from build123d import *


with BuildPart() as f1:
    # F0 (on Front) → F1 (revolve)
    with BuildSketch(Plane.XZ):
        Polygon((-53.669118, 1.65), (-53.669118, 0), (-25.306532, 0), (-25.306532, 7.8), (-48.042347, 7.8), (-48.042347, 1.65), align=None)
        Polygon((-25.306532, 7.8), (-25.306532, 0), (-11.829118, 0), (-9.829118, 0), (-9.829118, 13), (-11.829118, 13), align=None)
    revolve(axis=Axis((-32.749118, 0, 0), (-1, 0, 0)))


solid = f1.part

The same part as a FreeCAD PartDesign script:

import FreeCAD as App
import Part
import Sketcher

doc = App.newDocument("Part")
params = doc.addObject("Spreadsheet::Sheet", "Params")
for row, (alias, value) in enumerate([
    ("sketch1_width", "2 mm"),
    ("sketch1_height", "13 mm"),
    ("sketch1_width2", "43.84 mm"),
    ("sketch1_height2", "1.65 mm"),
    ("sketch1_height3", "6.15 mm"),
    ("revolution_angle", "360 deg"),
], start=1):
    params.set(f"A{row}", alias)
    params.set(f"B{row}", "=" + value)
    params.setAlias(f"B{row}", alias)

body = doc.addObject("PartDesign::Body", "Body")

# Sketch on XZ plane
sketch1 = body.newObject("Sketcher::SketchObject", "Sketch")
sketch1.AttachmentSupport = (doc.getObject("XZ_Plane"), [""])
sketch1.MapMode = "FlatFace"
sketch1.addGeometry([
    Part.LineSegment(App.Vector(-53.7, 1.6, 0), App.Vector(-53.7, 0, 0)),  # 0
    Part.LineSegment(App.Vector(-53.7, 0, 0), App.Vector(-9.8, 0, 0)),  # 1
    Part.LineSegment(App.Vector(-9.8, 0, 0), App.Vector(-9.8, 13, 0)),  # 2
    Part.LineSegment(App.Vector(-9.8, 13, 0), App.Vector(-11.8, 13, 0)),  # 3
    Part.LineSegment(App.Vector(-11.8, 13, 0), App.Vector(-25.3, 7.8, 0)),  # 4
    Part.LineSegment(App.Vector(-25.3, 7.8, 0), App.Vector(-48, 7.8, 0)),  # 5
    Part.LineSegment(App.Vector(-48, 7.8, 0), App.Vector(-48, 1.6, 0)),  # 6
    Part.LineSegment(App.Vector(-48, 1.6, 0), App.Vector(-53.7, 1.6, 0)),  # 7
], False)
sketch1.addConstraint([
    Sketcher.Constraint("Coincident", 0, 2, 1, 1),
    Sketcher.Constraint("Coincident", 1, 2, 2, 1),
    Sketcher.Constraint("Coincident", 2, 2, 3, 1),
    Sketcher.Constraint("Coincident", 3, 2, 4, 1),
    Sketcher.Constraint("Coincident", 4, 2, 5, 1),
    Sketcher.Constraint("Coincident", 5, 2, 6, 1),
    Sketcher.Constraint("Coincident", 6, 2, 7, 1),
    Sketcher.Constraint("Coincident", 7, 2, 0, 1),
    Sketcher.Constraint("Vertical", 0),
    Sketcher.Constraint("Horizontal", 1),
    Sketcher.Constraint("Vertical", 2),
    Sketcher.Constraint("Horizontal", 3),
    Sketcher.Constraint("Horizontal", 5),
    Sketcher.Constraint("Vertical", 6),
    Sketcher.Constraint("Horizontal", 7),
    Sketcher.Constraint("PointOnObject", 0, 2, -1),
    Sketcher.Constraint("DistanceX", 3, 2, 3, 1, 2.0),
    Sketcher.Constraint("DistanceY", 2, 1, 2, 2, 13.0),
    Sketcher.Constraint("DistanceX", 1, 1, 1, 2, 43.84),
    Sketcher.Constraint("DistanceY", 0, 2, 0, 1, 1.65),
    Sketcher.Constraint("DistanceY", 6, 2, 6, 1, 6.15),
    Sketcher.Constraint("DistanceX", 7, 2, 7, 1, 5.626771),
    Sketcher.Constraint("DistanceX", 5, 2, 5, 1, 22.735815),
    Sketcher.Constraint("DistanceX", 0, 2, -1, 1, 53.669118),
])
sketch1.setExpression("Constraints[16]", "Params.sketch1_width")
sketch1.setExpression("Constraints[17]", "Params.sketch1_height")
sketch1.setExpression("Constraints[18]", "Params.sketch1_width2")
sketch1.setExpression("Constraints[19]", "Params.sketch1_height2")
sketch1.setExpression("Constraints[20]", "Params.sketch1_height3")
revolution = body.newObject("PartDesign::Revolution", "Revolution")
revolution.Profile = sketch1
revolution.ReferenceAxis = (sketch1, ["H_Axis"])
revolution.setExpression("Angle", "Params.revolution_angle")

doc.recompute()
